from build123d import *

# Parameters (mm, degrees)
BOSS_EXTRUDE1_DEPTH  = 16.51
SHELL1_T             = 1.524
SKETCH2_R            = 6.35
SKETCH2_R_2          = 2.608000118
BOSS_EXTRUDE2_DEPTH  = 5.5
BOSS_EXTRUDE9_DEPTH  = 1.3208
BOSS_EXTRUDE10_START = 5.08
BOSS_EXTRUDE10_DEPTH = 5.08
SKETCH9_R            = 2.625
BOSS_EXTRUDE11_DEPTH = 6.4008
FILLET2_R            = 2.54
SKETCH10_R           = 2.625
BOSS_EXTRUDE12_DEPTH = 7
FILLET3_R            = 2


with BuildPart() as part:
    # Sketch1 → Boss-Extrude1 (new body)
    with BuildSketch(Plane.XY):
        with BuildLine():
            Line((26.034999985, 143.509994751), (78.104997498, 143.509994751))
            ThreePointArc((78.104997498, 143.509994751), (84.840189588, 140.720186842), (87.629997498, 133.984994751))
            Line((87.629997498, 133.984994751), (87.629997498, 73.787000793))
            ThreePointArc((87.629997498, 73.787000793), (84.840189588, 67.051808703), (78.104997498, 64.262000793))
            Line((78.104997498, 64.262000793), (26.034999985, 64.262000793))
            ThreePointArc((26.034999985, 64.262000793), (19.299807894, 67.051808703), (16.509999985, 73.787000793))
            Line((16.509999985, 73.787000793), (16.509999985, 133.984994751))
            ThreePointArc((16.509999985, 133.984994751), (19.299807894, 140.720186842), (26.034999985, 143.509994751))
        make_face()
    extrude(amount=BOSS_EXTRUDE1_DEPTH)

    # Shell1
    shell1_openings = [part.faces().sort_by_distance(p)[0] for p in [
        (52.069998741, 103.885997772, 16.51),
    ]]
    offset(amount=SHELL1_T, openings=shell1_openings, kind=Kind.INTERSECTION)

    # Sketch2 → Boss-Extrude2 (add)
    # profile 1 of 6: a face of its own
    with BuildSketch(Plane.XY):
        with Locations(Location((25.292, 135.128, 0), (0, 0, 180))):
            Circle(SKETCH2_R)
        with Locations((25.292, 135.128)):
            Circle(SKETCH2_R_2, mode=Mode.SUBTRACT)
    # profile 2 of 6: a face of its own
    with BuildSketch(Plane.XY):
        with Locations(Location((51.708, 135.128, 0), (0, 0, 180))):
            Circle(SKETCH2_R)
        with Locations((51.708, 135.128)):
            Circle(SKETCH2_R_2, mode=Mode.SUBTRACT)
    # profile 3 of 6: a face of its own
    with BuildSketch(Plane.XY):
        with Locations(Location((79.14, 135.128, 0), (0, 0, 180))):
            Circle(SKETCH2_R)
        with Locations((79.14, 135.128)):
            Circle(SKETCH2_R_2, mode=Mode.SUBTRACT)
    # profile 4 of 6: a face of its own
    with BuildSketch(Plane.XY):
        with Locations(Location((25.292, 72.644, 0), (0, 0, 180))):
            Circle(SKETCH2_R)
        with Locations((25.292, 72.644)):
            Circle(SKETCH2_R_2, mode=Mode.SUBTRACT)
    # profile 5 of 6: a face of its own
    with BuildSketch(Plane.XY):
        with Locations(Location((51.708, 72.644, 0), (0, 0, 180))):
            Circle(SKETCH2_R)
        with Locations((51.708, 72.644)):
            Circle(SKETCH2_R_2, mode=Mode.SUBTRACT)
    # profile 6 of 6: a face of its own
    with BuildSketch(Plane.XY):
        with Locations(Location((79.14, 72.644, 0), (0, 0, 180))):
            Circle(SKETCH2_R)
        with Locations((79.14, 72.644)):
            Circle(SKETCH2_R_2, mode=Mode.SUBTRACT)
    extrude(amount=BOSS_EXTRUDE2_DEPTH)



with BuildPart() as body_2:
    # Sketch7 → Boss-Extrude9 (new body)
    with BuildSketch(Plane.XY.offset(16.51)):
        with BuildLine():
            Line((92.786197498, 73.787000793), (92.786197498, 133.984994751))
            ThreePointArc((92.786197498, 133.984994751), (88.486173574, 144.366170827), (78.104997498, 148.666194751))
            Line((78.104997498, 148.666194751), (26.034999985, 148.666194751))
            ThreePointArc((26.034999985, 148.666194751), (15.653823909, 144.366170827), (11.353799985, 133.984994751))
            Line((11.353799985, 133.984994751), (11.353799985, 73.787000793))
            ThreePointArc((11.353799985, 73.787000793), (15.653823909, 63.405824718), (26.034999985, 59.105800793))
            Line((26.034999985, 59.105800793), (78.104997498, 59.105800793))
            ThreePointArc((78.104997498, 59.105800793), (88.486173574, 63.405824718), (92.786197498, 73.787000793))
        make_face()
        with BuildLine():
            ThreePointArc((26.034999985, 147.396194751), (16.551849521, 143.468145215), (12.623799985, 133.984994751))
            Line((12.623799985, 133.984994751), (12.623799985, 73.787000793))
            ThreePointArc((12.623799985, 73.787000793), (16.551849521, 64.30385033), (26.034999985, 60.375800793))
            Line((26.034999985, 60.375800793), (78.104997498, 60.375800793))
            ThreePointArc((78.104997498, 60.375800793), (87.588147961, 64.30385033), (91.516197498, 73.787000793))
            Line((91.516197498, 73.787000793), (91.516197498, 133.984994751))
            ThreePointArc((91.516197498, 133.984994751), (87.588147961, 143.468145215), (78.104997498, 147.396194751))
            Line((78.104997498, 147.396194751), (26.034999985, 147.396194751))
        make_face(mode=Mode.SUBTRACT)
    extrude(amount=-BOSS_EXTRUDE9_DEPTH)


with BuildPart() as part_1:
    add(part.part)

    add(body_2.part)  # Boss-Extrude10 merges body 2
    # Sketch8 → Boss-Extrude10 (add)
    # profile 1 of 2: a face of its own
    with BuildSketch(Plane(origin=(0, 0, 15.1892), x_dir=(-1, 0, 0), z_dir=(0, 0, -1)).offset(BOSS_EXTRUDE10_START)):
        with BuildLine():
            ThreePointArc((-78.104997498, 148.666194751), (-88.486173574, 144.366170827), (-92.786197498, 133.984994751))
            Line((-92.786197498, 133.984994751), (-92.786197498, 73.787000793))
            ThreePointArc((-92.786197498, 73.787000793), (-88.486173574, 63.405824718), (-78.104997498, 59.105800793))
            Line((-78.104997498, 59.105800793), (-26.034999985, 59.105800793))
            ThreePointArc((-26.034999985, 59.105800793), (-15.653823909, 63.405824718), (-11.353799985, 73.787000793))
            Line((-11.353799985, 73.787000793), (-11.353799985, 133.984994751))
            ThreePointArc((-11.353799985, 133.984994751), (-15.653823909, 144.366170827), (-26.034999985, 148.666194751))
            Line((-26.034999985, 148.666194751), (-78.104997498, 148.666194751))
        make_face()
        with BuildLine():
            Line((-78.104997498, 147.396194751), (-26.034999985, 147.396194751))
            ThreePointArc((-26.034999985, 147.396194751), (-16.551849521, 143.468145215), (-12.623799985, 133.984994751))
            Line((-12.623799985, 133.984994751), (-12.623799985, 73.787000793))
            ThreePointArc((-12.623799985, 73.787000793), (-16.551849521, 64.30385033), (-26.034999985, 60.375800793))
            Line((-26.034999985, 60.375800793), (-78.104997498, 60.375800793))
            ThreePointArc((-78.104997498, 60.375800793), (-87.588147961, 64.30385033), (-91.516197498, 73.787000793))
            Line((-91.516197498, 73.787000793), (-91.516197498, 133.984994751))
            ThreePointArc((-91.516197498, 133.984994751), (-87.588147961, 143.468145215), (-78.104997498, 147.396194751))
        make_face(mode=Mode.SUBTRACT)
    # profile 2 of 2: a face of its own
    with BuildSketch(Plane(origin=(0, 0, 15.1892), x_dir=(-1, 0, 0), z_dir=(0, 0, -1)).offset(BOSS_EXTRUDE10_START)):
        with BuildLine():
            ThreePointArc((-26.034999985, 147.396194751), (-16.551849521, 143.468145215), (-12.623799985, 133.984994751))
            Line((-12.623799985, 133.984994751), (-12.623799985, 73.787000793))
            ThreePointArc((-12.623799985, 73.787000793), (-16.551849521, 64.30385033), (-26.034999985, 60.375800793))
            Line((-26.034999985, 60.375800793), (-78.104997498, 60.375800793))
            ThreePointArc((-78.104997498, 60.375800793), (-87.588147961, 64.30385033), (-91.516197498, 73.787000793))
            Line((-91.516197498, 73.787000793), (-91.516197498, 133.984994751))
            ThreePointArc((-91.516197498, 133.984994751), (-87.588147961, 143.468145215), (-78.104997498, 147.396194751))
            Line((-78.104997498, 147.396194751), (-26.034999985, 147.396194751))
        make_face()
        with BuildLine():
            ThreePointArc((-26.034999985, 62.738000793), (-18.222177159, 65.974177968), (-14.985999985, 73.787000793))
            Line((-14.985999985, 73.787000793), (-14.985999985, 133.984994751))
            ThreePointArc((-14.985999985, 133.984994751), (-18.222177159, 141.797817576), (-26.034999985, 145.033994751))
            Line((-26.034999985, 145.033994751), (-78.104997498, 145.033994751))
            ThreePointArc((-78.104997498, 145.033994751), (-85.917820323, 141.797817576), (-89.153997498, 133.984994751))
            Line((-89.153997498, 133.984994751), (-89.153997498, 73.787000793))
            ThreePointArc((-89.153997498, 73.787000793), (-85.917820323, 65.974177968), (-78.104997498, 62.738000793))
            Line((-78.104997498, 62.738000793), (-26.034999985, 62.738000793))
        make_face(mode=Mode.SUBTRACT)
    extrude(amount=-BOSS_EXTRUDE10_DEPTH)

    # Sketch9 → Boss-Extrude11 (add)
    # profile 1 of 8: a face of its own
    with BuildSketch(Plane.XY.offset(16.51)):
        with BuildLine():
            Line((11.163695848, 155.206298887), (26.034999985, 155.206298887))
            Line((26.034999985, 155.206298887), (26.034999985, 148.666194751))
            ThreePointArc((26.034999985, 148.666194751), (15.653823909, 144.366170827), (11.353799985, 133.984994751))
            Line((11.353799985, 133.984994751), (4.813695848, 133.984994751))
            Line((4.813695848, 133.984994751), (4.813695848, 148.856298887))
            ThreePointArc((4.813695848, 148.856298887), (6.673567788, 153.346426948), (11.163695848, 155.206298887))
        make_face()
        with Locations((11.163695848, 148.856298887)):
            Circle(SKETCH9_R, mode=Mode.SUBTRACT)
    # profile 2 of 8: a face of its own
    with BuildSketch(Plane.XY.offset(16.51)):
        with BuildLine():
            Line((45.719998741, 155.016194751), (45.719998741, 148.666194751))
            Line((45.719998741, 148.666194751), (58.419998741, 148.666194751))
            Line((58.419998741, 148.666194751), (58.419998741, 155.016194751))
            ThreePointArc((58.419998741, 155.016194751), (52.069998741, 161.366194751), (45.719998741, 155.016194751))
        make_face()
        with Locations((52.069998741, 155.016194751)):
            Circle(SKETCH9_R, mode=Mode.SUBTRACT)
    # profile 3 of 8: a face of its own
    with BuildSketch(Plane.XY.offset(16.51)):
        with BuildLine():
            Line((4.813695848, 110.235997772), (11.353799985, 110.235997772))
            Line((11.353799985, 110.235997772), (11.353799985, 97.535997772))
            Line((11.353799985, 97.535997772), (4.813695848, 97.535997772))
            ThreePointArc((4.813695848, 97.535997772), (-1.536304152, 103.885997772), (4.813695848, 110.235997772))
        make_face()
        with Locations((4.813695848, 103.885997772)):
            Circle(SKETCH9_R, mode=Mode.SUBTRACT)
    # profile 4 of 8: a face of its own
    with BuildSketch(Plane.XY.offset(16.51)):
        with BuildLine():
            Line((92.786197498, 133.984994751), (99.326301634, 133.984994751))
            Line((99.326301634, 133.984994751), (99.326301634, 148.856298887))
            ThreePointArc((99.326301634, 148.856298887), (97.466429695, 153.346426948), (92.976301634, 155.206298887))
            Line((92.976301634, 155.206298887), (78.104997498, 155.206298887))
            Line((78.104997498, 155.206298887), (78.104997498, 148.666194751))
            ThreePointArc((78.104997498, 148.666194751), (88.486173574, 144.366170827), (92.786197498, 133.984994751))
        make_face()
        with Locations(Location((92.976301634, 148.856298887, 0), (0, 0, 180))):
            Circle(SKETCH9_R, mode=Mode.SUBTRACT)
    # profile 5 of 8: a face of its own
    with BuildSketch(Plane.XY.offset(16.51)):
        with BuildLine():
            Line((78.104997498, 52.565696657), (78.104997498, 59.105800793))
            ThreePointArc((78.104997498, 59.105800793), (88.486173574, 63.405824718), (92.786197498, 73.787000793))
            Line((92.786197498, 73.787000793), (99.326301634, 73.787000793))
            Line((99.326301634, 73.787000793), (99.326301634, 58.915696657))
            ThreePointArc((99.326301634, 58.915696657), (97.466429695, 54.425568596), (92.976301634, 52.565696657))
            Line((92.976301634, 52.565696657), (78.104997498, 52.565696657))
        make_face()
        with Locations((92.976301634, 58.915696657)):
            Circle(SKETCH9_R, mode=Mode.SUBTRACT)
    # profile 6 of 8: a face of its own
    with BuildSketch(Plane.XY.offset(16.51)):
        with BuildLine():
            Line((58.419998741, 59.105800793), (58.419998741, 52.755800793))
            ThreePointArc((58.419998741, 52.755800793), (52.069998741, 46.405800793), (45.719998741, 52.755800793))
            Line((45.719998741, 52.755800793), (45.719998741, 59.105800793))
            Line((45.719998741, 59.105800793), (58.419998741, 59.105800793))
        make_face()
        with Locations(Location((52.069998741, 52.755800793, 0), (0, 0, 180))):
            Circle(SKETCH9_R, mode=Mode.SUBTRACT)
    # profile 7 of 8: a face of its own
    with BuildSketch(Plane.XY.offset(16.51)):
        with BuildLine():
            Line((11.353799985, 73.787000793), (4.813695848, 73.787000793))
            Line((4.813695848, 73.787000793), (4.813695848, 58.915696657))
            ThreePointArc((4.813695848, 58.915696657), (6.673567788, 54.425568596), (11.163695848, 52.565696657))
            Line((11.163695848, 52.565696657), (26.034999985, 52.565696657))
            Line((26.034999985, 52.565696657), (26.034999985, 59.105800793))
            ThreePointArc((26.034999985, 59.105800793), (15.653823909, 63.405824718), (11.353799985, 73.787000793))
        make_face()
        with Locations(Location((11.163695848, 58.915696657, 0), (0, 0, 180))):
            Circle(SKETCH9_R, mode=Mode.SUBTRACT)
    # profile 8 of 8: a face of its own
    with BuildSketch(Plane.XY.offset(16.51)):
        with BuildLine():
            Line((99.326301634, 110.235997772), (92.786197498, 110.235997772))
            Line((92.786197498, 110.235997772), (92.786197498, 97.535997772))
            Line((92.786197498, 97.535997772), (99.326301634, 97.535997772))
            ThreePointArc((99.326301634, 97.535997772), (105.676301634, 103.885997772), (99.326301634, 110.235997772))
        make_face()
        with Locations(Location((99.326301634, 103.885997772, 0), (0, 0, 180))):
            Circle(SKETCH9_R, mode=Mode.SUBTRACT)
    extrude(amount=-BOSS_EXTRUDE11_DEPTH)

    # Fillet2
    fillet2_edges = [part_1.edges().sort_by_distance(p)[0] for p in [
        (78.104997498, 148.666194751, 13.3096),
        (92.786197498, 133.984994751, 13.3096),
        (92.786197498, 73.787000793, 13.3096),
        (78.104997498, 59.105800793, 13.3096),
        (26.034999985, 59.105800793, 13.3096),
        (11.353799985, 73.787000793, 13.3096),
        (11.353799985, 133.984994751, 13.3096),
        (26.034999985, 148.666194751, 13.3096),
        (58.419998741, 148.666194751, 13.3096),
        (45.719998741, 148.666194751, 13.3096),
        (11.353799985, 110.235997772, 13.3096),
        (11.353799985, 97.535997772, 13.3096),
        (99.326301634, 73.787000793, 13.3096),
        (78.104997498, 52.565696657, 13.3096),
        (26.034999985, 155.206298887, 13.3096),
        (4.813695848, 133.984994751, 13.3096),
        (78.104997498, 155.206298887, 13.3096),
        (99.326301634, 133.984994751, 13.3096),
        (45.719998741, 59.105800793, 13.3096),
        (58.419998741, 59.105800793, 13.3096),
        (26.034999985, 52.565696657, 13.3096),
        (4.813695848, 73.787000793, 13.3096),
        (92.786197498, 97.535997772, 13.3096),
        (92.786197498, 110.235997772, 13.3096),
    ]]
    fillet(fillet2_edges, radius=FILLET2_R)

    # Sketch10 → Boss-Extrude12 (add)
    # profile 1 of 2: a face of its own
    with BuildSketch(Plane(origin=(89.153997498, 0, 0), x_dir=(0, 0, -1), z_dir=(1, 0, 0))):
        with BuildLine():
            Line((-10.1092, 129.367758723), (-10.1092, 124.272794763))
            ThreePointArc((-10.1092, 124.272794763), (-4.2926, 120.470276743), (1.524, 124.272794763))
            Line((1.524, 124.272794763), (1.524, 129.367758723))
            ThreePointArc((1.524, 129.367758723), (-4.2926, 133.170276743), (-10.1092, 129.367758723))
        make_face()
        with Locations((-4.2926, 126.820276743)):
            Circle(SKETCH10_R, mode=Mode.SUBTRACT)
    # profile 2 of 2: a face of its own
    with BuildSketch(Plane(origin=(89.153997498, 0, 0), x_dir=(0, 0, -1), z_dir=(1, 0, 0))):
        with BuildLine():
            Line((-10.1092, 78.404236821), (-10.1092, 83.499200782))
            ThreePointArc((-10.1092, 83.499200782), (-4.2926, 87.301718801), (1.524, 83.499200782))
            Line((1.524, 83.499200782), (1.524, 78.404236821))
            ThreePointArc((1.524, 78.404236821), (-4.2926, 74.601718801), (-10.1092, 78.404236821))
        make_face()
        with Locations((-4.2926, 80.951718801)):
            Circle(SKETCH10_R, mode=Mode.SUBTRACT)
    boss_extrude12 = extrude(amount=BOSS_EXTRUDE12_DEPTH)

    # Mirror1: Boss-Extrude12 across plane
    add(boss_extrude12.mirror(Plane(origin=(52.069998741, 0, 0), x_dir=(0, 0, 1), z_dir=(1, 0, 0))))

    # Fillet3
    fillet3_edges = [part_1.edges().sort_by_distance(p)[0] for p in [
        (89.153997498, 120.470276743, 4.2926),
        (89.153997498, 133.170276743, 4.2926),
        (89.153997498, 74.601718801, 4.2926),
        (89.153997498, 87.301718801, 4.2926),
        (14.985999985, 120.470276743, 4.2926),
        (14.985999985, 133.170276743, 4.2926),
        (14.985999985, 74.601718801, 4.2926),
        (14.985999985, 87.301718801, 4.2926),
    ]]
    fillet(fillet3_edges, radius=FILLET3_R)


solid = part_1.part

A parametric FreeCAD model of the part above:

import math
import FreeCAD as App
import Part
import Sketcher

V = App.Vector
Q = App.Units.Quantity


def edges_at(feature, points):
    """Names of the edges that pass closest to the given points."""
    edges = feature.Shape.Edges
    near = lambda p: min(range(len(edges)), key=lambda i: edges[i].distToShape(Part.Vertex(*p))[0])
    return sorted({f"Edge{near(p) + 1}" for p in points})


def faces_at(feature, points):
    """Names of the faces that lie closest to the given points."""
    faces = feature.Shape.Faces
    near = lambda p: min(range(len(faces)), key=lambda i: faces[i].distToShape(Part.Vertex(*p))[0])
    return sorted({f"Face{near(p) + 1}" for p in points})

doc = App.newDocument("Part")
params = doc.addObject("Spreadsheet::Sheet", "Params")
for row, (alias, value) in enumerate([
    ("sketch1_radius", "0.375 in"),
    ("sketch1_width", "2.0499999 in"),
    ("pad1_length", "0.65 in"),
    ("thickness_wall", "0.06 in"),
    ("sketch2_diameter", "0.5 in"),
    ("pad2_length", "5.5 mm"),
    ("sketch3_radius", "0.578 in"),
    ("sketch3_radius2", "0.528 in"),
    ("sketch3_width", "2.0499999 in"),
    ("pad3_length", "0.052 in"),
    ("sketch4_radius", "0.578 in"),
    ("sketch4_radius2", "0.435 in"),
    ("sketch4_width", "2.0499999 in"),
    ("pad4_length", "0.2 in"),
    ("sketch5_radius", "0.25 in"),
    ("sketch5_radius2", "0.578 in"),
    ("sketch5_height", "0.25 in"),
    ("pad5_length", "0.252 in"),
    ("fillet_radius", "0.1 in"),
    ("sketch6_radius", "0.25 in"),
    ("pad6_length", "7 mm"),
    ("fillet2_radius", "2 mm"),
], start=1):
    params.set(f"A{row}", alias)
    params.set(f"B{row}", "=" + value)
    params.setAlias(f"B{row}", alias)

body = doc.addObject("PartDesign::Body", "Body")

# Sketch on XY plane
sketch1 = body.newObject("Sketcher::SketchObject", "Sketch")
sketch1.AttachmentSupport = (doc.getObject("XY_Plane"), [""])
sketch1.MapMode = "FlatFace"
sketch1.addGeometry([
    Part.LineSegment(V(78.104997, 143.509995, 0), V(26.035, 143.509995, 0)),  # 0
    Part.ArcOfCircle(Part.Circle(V(26.035, 133.984995, 0), V(0, 0, 1), 9.525), math.radians(90), math.radians(180)),  # 1
    Part.LineSegment(V(16.51, 133.984995, 0), V(16.51, 73.787001, 0)),  # 2
    Part.ArcOfCircle(Part.Circle(V(26.035, 73.787001, 0), V(0, 0, 1), 9.525), math.radians(-180), math.radians(-90)),  # 3
    Part.LineSegment(V(26.035, 64.262001, 0), V(78.104997, 64.262001, 0)),  # 4
    Part.ArcOfCircle(Part.Circle(V(78.104997, 73.787001, 0), V(0, 0, 1), 9.525), math.radians(-90), math.radians(0)),  # 5
    Part.LineSegment(V(87.629997, 73.787001, 0), V(87.629997, 133.984995, 0)),  # 6
    Part.ArcOfCircle(Part.Circle(V(78.104997, 133.984995, 0), V(0, 0, 1), 9.525), math.radians(0), math.radians(90)),  # 7
], False)
sketch1.addConstraint([
    Sketcher.Constraint("Tangent", 0, 2, 1, 1),
    Sketcher.Constraint("Tangent", 1, 2, 2, 1),
    Sketcher.Constraint("Tangent", 2, 2, 3, 1),
    Sketcher.Constraint("Tangent", 3, 2, 4, 1),
    Sketcher.Constraint("Tangent", 4, 2, 5, 1),
    Sketcher.Constraint("Tangent", 5, 2, 6, 1),
    Sketcher.Constraint("Tangent", 6, 2, 7, 1),
    Sketcher.Constraint("Tangent", 7, 2, 0, 1),
    Sketcher.Constraint("Horizontal", 0),
    Sketcher.Constraint("Vertical", 2),
    Sketcher.Constraint("Horizontal", 4),
    Sketcher.Constraint("Vertical", 6),
    Sketcher.Constraint("Equal", 1, 3),
    Sketcher.Constraint("Equal", 3, 5),
    Sketcher.Constraint("Equal", 5, 7),
    Sketcher.Constraint("Radius", 1, Q("0.375 in")),
    Sketcher.Constraint("DistanceX", 0, 2, 0, 1, Q("2.0499999 in")),
    Sketcher.Constraint("DistanceX", -1, 1, 1, 2, Q("0.65 in")),
    Sketcher.Constraint("DistanceY", -1, 1, 3, 2, Q("2.53 in")),
    Sketcher.Constraint("DistanceY", 2, 2, 2, 1, Q("60.197994 mm")),
])
sketch1.setExpression("Constraints[15]", "Params.sketch1_radius")
sketch1.setExpression("Constraints[16]", "Params.sketch1_width")
pad1 = body.newObject("PartDesign::Pad", "Pad")
pad1.Profile = sketch1
pad1.setExpression("Length", "Params.pad1_length")
doc.recompute()

thickness = body.newObject("PartDesign::Thickness", "Thickness")
thickness.Base = (pad1, faces_at(pad1, [(52.07, 103.886, 16.51)]))
thickness.setExpression("Value", "Params.thickness_wall")
thickness.Reversed = False
thickness.Join = "Intersection"

# Sketch on XY plane
sketch2 = body.newObject("Sketcher::SketchObject", "Sketch001")
sketch2.AttachmentSupport = (doc.getObject("XY_Plane"), [""])
sketch2.MapMode = "FlatFace"
sketch2.addGeometry([
    Part.Circle(V(25.292, 135.128, 0), V(0, 0, 1), 6.35),  # 0
    Part.Circle(V(25.292, 135.128, 0), V(0, 0, 1), 2.608),  # 1
    Part.Circle(V(51.708, 135.128, 0), V(0, 0, 1), 6.35),  # 2
    Part.Circle(V(51.708, 135.128, 0), V(0, 0, 1), 2.608),  # 3
    Part.Circle(V(79.14, 135.128, 0), V(0, 0, 1), 6.35),  # 4
    Part.Circle(V(79.14, 135.128, 0), V(0, 0, 1), 2.608),  # 5
    Part.Circle(V(25.292, 72.644, 0), V(0, 0, 1), 6.35),  # 6
    Part.Circle(V(25.292, 72.644, 0), V(0, 0, 1), 2.608),  # 7
    Part.Circle(V(51.708, 72.644, 0), V(0, 0, 1), 6.35),  # 8
    Part.Circle(V(51.708, 72.644, 0), V(0, 0, 1), 2.608),  # 9
    Part.Circle(V(79.14, 72.644, 0), V(0, 0, 1), 6.35),  # 10
    Part.Circle(V(79.14, 72.644, 0), V(0, 0, 1), 2.608),  # 11
], False)
sketch2.addConstraint([
    Sketcher.Constraint("Coincident", 1, 3, 0, 3),
    Sketcher.Constraint("Coincident", 3, 3, 2, 3),
    Sketcher.Constraint("Coincident", 5, 3, 4, 3),
    Sketcher.Constraint("Coincident", 7, 3, 6, 3),
    Sketcher.Constraint("Coincident", 9, 3, 8, 3),
    Sketcher.Constraint("Coincident", 11, 3, 10, 3),
    Sketcher.Constraint("Equal", 0, 2),
    Sketcher.Constraint("Equal", 1, 3),
    Sketcher.Constraint("Equal", 2, 4),
    Sketcher.Constraint("Equal", 3, 5),
    Sketcher.Constraint("Equal", 4, 6),
    Sketcher.Constraint("Equal", 5, 7),
    Sketcher.Constraint("Equal", 6, 8),
    Sketcher.Constraint("Equal", 7, 9),
    Sketcher.Constraint("Equal", 8, 10),
    Sketcher.Constraint("Equal", 9, 11),
    Sketcher.Constraint("Horizontal", 1, 3, 2, 3),
    Sketcher.Constraint("Horizontal", 3, 3, 4, 3),
    Sketcher.Constraint("Horizontal", 7, 3, 8, 3),
    Sketcher.Constraint("Horizontal", 9, 3, 10, 3),
    Sketcher.Constraint("Vertical", 1, 3, 6, 3),
    Sketcher.Constraint("Vertical", 3, 3, 8, 3),
    Sketcher.Constraint("Vertical", 5, 3, 10, 3),
    Sketcher.Constraint("Diameter", 0, Q("0.5 in")),
    Sketcher.Constraint("Diameter", 1, Q("5.216 mm")),
    Sketcher.Constraint("DistanceY", -1, 1, 0, 3, Q("5.32 in")),
    Sketcher.Constraint("DistanceY", -1, 1, 6, 3, Q("2.86 in")),
    Sketcher.Constraint("DistanceX", 0, 3, 2, 3, Q("1.04 in")),
    Sketcher.Constraint("DistanceX", 2, 3, 4, 3, Q("1.08 in")),
    Sketcher.Constraint("DistanceX", -1, 1, 0, 3, Q("25.292 mm")),
])
sketch2.setExpression("Constraints[23]", "Params.sketch2_diameter")
pad2 = body.newObject("PartDesign::Pad", "Pad001")
pad2.Profile = sketch2
pad2.setExpression("Length", "Params.pad2_length")
body2 = doc.addObject("PartDesign::Body", "Body001")

# Sketch on XY plane
sketch3 = body2.newObject("Sketcher::SketchObject", "Sketch002")
sketch3.AttachmentSupport = (doc.getObject("XY_Plane001"), [""])
sketch3.MapMode = "FlatFace"
sketch3.AttachmentOffset = App.Placement(V(0, 0, 0.65 * 25.4), App.Rotation())
sketch3.addGeometry([
    Part.LineSegment(V(92.786197, 73.787001, 0), V(92.786197, 133.984995, 0)),  # 0
    Part.ArcOfCircle(Part.Circle(V(78.104997, 133.984995, 0), V(0, 0, 1), 14.6812), math.radians(0), math.radians(90)),  # 1
    Part.LineSegment(V(78.104997, 148.666195, 0), V(26.035, 148.666195, 0)),  # 2
    Part.ArcOfCircle(Part.Circle(V(26.035, 133.984995, 0), V(0, 0, 1), 14.6812), math.radians(90), math.radians(180)),  # 3
    Part.LineSegment(V(11.3538, 133.984995, 0), V(11.3538, 73.787001, 0)),  # 4
    Part.ArcOfCircle(Part.Circle(V(26.035, 73.787001, 0), V(0, 0, 1), 14.6812), math.radians(-180), math.radians(-90)),  # 5
    Part.LineSegment(V(26.035, 59.105801, 0), V(78.104997, 59.105801, 0)),  # 6
    Part.ArcOfCircle(Part.Circle(V(78.104997, 73.787001, 0), V(0, 0, 1), 14.6812), math.radians(-90), math.radians(0)),  # 7
    Part.ArcOfCircle(Part.Circle(V(26.035, 133.984995, 0), V(0, 0, 1), 13.4112), math.radians(90), math.radians(180)),  # 8
    Part.LineSegment(V(26.035, 147.396195, 0), V(78.104997, 147.396195, 0)),  # 9
    Part.ArcOfCircle(Part.Circle(V(78.104997, 133.984995, 0), V(0, 0, 1), 13.4112), math.radians(0), math.radians(90)),  # 10
    Part.LineSegment(V(91.516197, 133.984995, 0), V(91.516197, 73.787001, 0)),  # 11
    Part.ArcOfCircle(Part.Circle(V(78.104997, 73.787001, 0), V(0, 0, 1), 13.4112), math.radians(-90), math.radians(0)),  # 12
    Part.LineSegment(V(78.104997, 60.375801, 0), V(26.035, 60.375801, 0)),  # 13
    Part.ArcOfCircle(Part.Circle(V(26.035, 73.787001, 0), V(0, 0, 1), 13.4112), math.radians(-180), math.radians(-90)),  # 14
    Part.LineSegment(V(12.6238, 73.787001, 0), V(12.6238, 133.984995, 0)),  # 15
], False)
sketch3.addConstraint([
    Sketcher.Constraint("Tangent", 0, 2, 1, 1),
    Sketcher.Constraint("Tangent", 1, 2, 2, 1),
    Sketcher.Constraint("Tangent", 2, 2, 3, 1),
    Sketcher.Constraint("Tangent", 3, 2, 4, 1),
    Sketcher.Constraint("Tangent", 4, 2, 5, 1),
    Sketcher.Constraint("Tangent", 5, 2, 6, 1),
    Sketcher.Constraint("Tangent", 6, 2, 7, 1),
    Sketcher.Constraint("Tangent", 7, 2, 0, 1),
    Sketcher.Constraint("Tangent", 8, 1, 9, 1),
    Sketcher.Constraint("Tangent", 9, 2, 10, 2),
    Sketcher.Constraint("Tangent", 10, 1, 11, 1),
    Sketcher.Constraint("Tangent", 11, 2, 12, 2),
    Sketcher.Constraint("Tangent", 12, 1, 13, 1),
    Sketcher.Constraint("Tangent", 13, 2, 14, 2),
    Sketcher.Constraint("Tangent", 14, 1, 15, 1),
    Sketcher.Constraint("Tangent", 15, 2, 8, 2),
    Sketcher.Constraint("Vertical", 0),
    Sketcher.Constraint("Horizontal", 2),
    Sketcher.Constraint("Vertical", 4),
    Sketcher.Constraint("Horizontal", 6),
    Sketcher.Constraint("Horizontal", 9),
    Sketcher.Constraint("Vertical", 11),
    Sketcher.Constraint("Horizontal", 13),
    Sketcher.Constraint("Vertical", 15),
    Sketcher.Constraint("Coincident", 8, 3, 3, 3),
    Sketcher.Constraint("Coincident", 10, 3, 1, 3),
    Sketcher.Constraint("Coincident", 12, 3, 7, 3),
    Sketcher.Constraint("Equal", 1, 3),
    Sketcher.Constraint("Equal", 3, 5),
    Sketcher.Constraint("Equal", 5, 7),
    Sketcher.Constraint("Equal", 12, 14),
    Sketcher.Constraint("Radius", 1, Q("0.578 in")),
    Sketcher.Constraint("Radius", 8, Q("0.528 in")),
    Sketcher.Constraint("DistanceX", 2, 2, 2, 1, Q("2.0499999 in")),
    Sketcher.Constraint("DistanceX", -1, 1, 1, 3, Q("3.0749999 in")),
    Sketcher.Constraint("DistanceY", -1, 1, 5, 3, Q("2.905 in")),
    Sketcher.Constraint("DistanceY", 0, 1, 0, 2, Q("60.197994 mm")),
])
sketch3.setExpression("Constraints[31]", "Params.sketch3_radius")
sketch3.setExpression("Constraints[32]", "Params.sketch3_radius2")
sketch3.setExpression("Constraints[33]", "Params.sketch3_width")
pad3 = body2.newObject("PartDesign::Pad", "Pad002")
pad3.Profile = sketch3
pad3.setExpression("Length", "Params.pad3_length")
pad3.Reversed = True
body.AllowCompound = True
doc.recompute()

boolean = body.newObject("PartDesign::Boolean", "Boolean")
boolean.Type = "Fuse"
boolean.addObjects([body2])

# Sketch on XY plane
sketch4 = body.newObject("Sketcher::SketchObject", "Sketch003")
sketch4.AttachmentSupport = (doc.getObject("XY_Plane"), [""])
sketch4.MapMode = "FlatFace"
sketch4.AttachmentOffset = App.Placement(V(0, 0, 0.398 * 25.4), App.Rotation())
sketch4.addGeometry([
    Part.ArcOfCircle(Part.Circle(V(78.104997, 133.984995, 0), V(0, 0, 1), 14.6812), math.radians(0), math.radians(90)),  # 0
    Part.LineSegment(V(92.786197, 133.984995, 0), V(92.786197, 73.787001, 0)),  # 1
    Part.ArcOfCircle(Part.Circle(V(78.104997, 73.787001, 0), V(0, 0, 1), 14.6812), math.radians(-90), math.radians(0)),  # 2
    Part.LineSegment(V(78.104997, 59.105801, 0), V(26.035, 59.105801, 0)),  # 3
    Part.ArcOfCircle(Part.Circle(V(26.035, 73.787001, 0), V(0, 0, 1), 14.6812), math.radians(-180), math.radians(-90)),  # 4
    Part.LineSegment(V(11.3538, 73.787001, 0), V(11.3538, 133.984995, 0)),  # 5
    Part.ArcOfCircle(Part.Circle(V(26.035, 133.984995, 0), V(0, 0, 1), 14.6812), math.radians(90), math.radians(180)),  # 6
    Part.LineSegment(V(26.035, 148.666195, 0), V(78.104997, 148.666195, 0)),  # 7
    Part.ArcOfCircle(Part.Circle(V(78.104997, 73.787001, 0), V(0, 0, 1), 11.049), math.radians(-90), math.radians(0)),  # 8
    Part.LineSegment(V(89.153997, 73.787001, 0), V(89.153997, 133.984995, 0)),  # 9
    Part.ArcOfCircle(Part.Circle(V(78.104997, 133.984995, 0), V(0, 0, 1), 11.049), math.radians(0), math.radians(90)),  # 10
    Part.LineSegment(V(78.104997, 145.033995, 0), V(26.035, 145.033995, 0)),  # 11
    Part.ArcOfCircle(Part.Circle(V(26.035, 133.984995, 0), V(0, 0, 1), 11.049), math.radians(90), math.radians(180)),  # 12
    Part.LineSegment(V(14.986, 133.984995, 0), V(14.986, 73.787001, 0)),  # 13
    Part.ArcOfCircle(Part.Circle(V(26.035, 73.787001, 0), V(0, 0, 1), 11.049), math.radians(180), math.radians(270)),  # 14
    Part.LineSegment(V(26.035, 62.738001, 0), V(78.104997, 62.738001, 0)),  # 15
], False)
sketch4.addConstraint([
    Sketcher.Constraint("Tangent", 0, 1, 1, 1),
    Sketcher.Constraint("Tangent", 1, 2, 2, 2),
    Sketcher.Constraint("Tangent", 2, 1, 3, 1),
    Sketcher.Constraint("Tangent", 3, 2, 4, 2),
    Sketcher.Constraint("Tangent", 4, 1, 5, 1),
    Sketcher.Constraint("Tangent", 5, 2, 6, 2),
    Sketcher.Constraint("Tangent", 6, 1, 7, 1),
    Sketcher.Constraint("Tangent", 7, 2, 0, 2),
    Sketcher.Constraint("Tangent", 8, 2, 9, 1),
    Sketcher.Constraint("Tangent", 9, 2, 10, 1),
    Sketcher.Constraint("Tangent", 10, 2, 11, 1),
    Sketcher.Constraint("Tangent", 11, 2, 12, 1),
    Sketcher.Constraint("Tangent", 12, 2, 13, 1),
    Sketcher.Constraint("Tangent", 13, 2, 14, 1),
    Sketcher.Constraint("Tangent", 14, 2, 15, 1),
    Sketcher.Constraint("Tangent", 15, 2, 8, 1),
    Sketcher.Constraint("Vertical", 1),
    Sketcher.Constraint("Horizontal", 3),
    Sketcher.Constraint("Vertical", 5),
    Sketcher.Constraint("Horizontal", 7),
    Sketcher.Constraint("Vertical", 9),
    Sketcher.Constraint("Horizontal", 11),
    Sketcher.Constraint("Vertical", 13),
    Sketcher.Constraint("Horizontal", 15),
    Sketcher.Constraint("Coincident", 8, 3, 2, 3),
    Sketcher.Constraint("Coincident", 10, 3, 0, 3),
    Sketcher.Constraint("Coincident", 12, 3, 6, 3),
    Sketcher.Constraint("Equal", 0, 2),
    Sketcher.Constraint("Equal", 2, 4),
    Sketcher.Constraint("Equal", 4, 6),
    Sketcher.Constraint("Equal", 12, 14),
    Sketcher.Constraint("Radius", 0, Q("0.578 in")),
    Sketcher.Constraint("Radius", 8, Q("0.435 in")),
    Sketcher.Constraint("DistanceX", 3, 2, 3, 1, Q("2.0499999 in")),
    Sketcher.Constraint("DistanceX", -1, 1, 8, 2, Q("3.5099999 in")),
    Sketcher.Constraint("DistanceY", -1, 1, 14, 2, Q("2.47 in")),
    Sketcher.Constraint("DistanceY", 1, 2, 1, 1, Q("60.197994 mm")),
])
sketch4.setExpression("Constraints[31]", "Params.sketch4_radius")
sketch4.setExpression("Constraints[32]", "Params.sketch4_radius2")
sketch4.setExpression("Constraints[33]", "Params.sketch4_width")
pad4 = body.newObject("PartDesign::Pad", "Pad003")
pad4.Profile = sketch4
pad4.setExpression("Length", "Params.pad4_length")

# Sketch on XY plane
sketch5 = body.newObject("Sketcher::SketchObject", "Sketch004")
sketch5.AttachmentSupport = (doc.getObject("XY_Plane"), [""])
sketch5.MapMode = "FlatFace"
sketch5.AttachmentOffset = App.Placement(V(0, 0, 0.65 * 25.4), App.Rotation())
sketch5.addGeometry([
    Part.LineSegment(V(26.035, 155.206299, 0), V(11.163696, 155.206299, 0)),  # 0
    Part.ArcOfCircle(Part.Circle(V(11.163696, 148.856299, 0), V(0, 0, 1), 6.35), math.radians(90), math.radians(180)),  # 1
    Part.LineSegment(V(4.813696, 148.856299, 0), V(4.813696, 133.984995, 0)),  # 2
    Part.LineSegment(V(4.813696, 133.984995, 0), V(11.3538, 133.984995, 0)),  # 3
    Part.ArcOfCircle(Part.Circle(V(26.035, 133.984995, 0), V(0, 0, 1), 14.6812), math.radians(90), math.radians(180)),  # 4
    Part.LineSegment(V(26.035, 148.666195, 0), V(26.035, 155.206299, 0)),  # 5
    Part.Circle(V(11.163696, 148.856299, 0), V(0, 0, 1), 2.625),  # 6
    Part.LineSegment(V(45.719999, 155.016195, 0), V(45.719999, 148.666195, 0)),  # 7
    Part.LineSegment(V(45.719999, 148.666195, 0), V(58.419999, 148.666195, 0)),  # 8
    Part.LineSegment(V(58.419999, 148.666195, 0), V(58.419999, 155.016195, 0)),  # 9
    Part.ArcOfCircle(Part.Circle(V(52.069999, 155.016195, 0), V(0, 0, 1), 6.35), math.radians(0), math.radians(180)),  # 10
    Part.Circle(V(52.069999, 155.016195, 0), V(0, 0, 1), 2.625),  # 11
    Part.LineSegment(V(11.3538, 110.235998, 0), V(4.813696, 110.235998, 0)),  # 12
    Part.ArcOfCircle(Part.Circle(V(4.813696, 103.885998, 0), V(0, 0, 1), 6.35), math.radians(90), math.radians(270)),  # 13
    Part.LineSegment(V(4.813696, 97.535998, 0), V(11.3538, 97.535998, 0)),  # 14
    Part.LineSegment(V(11.3538, 97.535998, 0), V(11.3538, 110.235998, 0)),  # 15
    Part.Circle(V(4.813696, 103.885998, 0), V(0, 0, 1), 2.625),  # 16
    Part.LineSegment(V(92.786197, 133.984995, 0), V(99.326302, 133.984995, 0)),  # 17
    Part.LineSegment(V(99.326302, 133.984995, 0), V(99.326302, 148.856299, 0)),  # 18
    Part.ArcOfCircle(Part.Circle(V(92.976302, 148.856299, 0), V(0, 0, 1), 6.35), math.radians(0), math.radians(90)),  # 19
    Part.LineSegment(V(92.976302, 155.206299, 0), V(78.104997, 155.206299, 0)),  # 20
    Part.LineSegment(V(78.104997, 155.206299, 0), V(78.104997, 148.666195, 0)),  # 21
    Part.ArcOfCircle(Part.Circle(V(78.104997, 133.984995, 0), V(0, 0, 1), 14.6812), math.radians(0), math.radians(90)),  # 22
    Part.Circle(V(92.976302, 148.856299, 0), V(0, 0, 1), 2.625),  # 23
    Part.LineSegment(V(78.104997, 59.105801, 0), V(78.104997, 52.565697, 0)),  # 24
    Part.LineSegment(V(78.104997, 52.565697, 0), V(92.976302, 52.565697, 0)),  # 25
    Part.ArcOfCircle(Part.Circle(V(92.976302, 58.915697, 0), V(0, 0, 1), 6.35), math.radians(-90), math.radians(0)),  # 26
    Part.LineSegment(V(99.326302, 58.915697, 0), V(99.326302, 73.787001, 0)),  # 27
    Part.LineSegment(V(99.326302, 73.787001, 0), V(92.786197, 73.787001, 0)),  # 28
    Part.ArcOfCircle(Part.Circle(V(78.104997, 73.787001, 0), V(0, 0, 1), 14.6812), math.radians(-90), math.radians(0)),  # 29
    Part.Circle(V(92.976302, 58.915697, 0), V(0, 0, 1), 2.625),  # 30
    Part.LineSegment(V(58.419999, 52.755801, 0), V(58.419999, 59.105801, 0)),  # 31
    Part.LineSegment(V(58.419999, 59.105801, 0), V(45.719999, 59.105801, 0)),  # 32
    Part.LineSegment(V(45.719999, 59.105801, 0), V(45.719999, 52.755801, 0)),  # 33
    Part.ArcOfCircle(Part.Circle(V(52.069999, 52.755801, 0), V(0, 0, 1), 6.35), math.radians(180), math.radians(360)),  # 34
    Part.Circle(V(52.069999, 52.755801, 0), V(0, 0, 1), 2.625),  # 35
    Part.LineSegment(V(11.3538, 73.787001, 0), V(4.813696, 73.787001, 0)),  # 36
    Part.LineSegment(V(4.813696, 73.787001, 0), V(4.813696, 58.915697, 0)),  # 37
    Part.ArcOfCircle(Part.Circle(V(11.163696, 58.915697, 0), V(0, 0, 1), 6.35), math.radians(180), math.radians(270)),  # 38
    Part.LineSegment(V(11.163696, 52.565697, 0), V(26.035, 52.565697, 0)),  # 39
    Part.LineSegment(V(26.035, 52.565697, 0), V(26.035, 59.105801, 0)),  # 40
    Part.ArcOfCircle(Part.Circle(V(26.035, 73.787001, 0), V(0, 0, 1), 14.6812), math.radians(-180), math.radians(-90)),  # 41
    Part.Circle(V(11.163696, 58.915697, 0), V(0, 0, 1), 2.625),  # 42
    Part.LineSegment(V(99.326302, 110.235998, 0), V(92.786197, 110.235998, 0)),  # 43
    Part.LineSegment(V(92.786197, 110.235998, 0), V(92.786197, 97.535998, 0)),  # 44
    Part.LineSegment(V(92.786197, 97.535998, 0), V(99.326302, 97.535998, 0)),  # 45
    Part.ArcOfCircle(Part.Circle(V(99.326302, 103.885998, 0), V(0, 0, 1), 6.35), math.radians(-90), math.radians(90)),  # 46
    Part.Circle(V(99.326302, 103.885998, 0), V(0, 0, 1), 2.625),  # 47
], False)
sketch5.addConstraint([
    Sketcher.Constraint("Tangent", 0, 2, 1, 1),
    Sketcher.Constraint("Tangent", 1, 2, 2, 1),
    Sketcher.Constraint("Coincident", 2, 2, 3, 1),
    Sketcher.Constraint("Coincident", 3, 2, 4, 2),
    Sketcher.Constraint("Coincident", 4, 1, 5, 1),
    Sketcher.Constraint("Coincident", 5, 2, 0, 1),
    Sketcher.Constraint("Coincident", 7, 2, 8, 1),
    Sketcher.Constraint("Coincident", 8, 2, 9, 1),
    Sketcher.Constraint("Tangent", 9, 2, 10, 1),
    Sketcher.Constraint("Tangent", 10, 2, 7, 1),
    Sketcher.Constraint("Tangent", 12, 2, 13, 1),
    Sketcher.Constraint("Tangent", 13, 2, 14, 1),
    Sketcher.Constraint("Coincident", 14, 2, 15, 1),
    Sketcher.Constraint("Coincident", 15, 2, 12, 1),
    Sketcher.Constraint("Coincident", 17, 2, 18, 1),
    Sketcher.Constraint("Tangent", 18, 2, 19, 1),
    Sketcher.Constraint("Tangent", 19, 2, 20, 1),
    Sketcher.Constraint("Coincident", 20, 2, 21, 1),
    Sketcher.Constraint("Coincident", 21, 2, 22, 2),
    Sketcher.Constraint("Coincident", 22, 1, 17, 1),
    Sketcher.Constraint("Coincident", 24, 2, 25, 1),
    Sketcher.Constraint("Tangent", 25, 2, 26, 1),
    Sketcher.Constraint("Tangent", 26, 2, 27, 1),
    Sketcher.Constraint("Coincident", 27, 2, 28, 1),
    Sketcher.Constraint("Coincident", 28, 2, 29, 2),
    Sketcher.Constraint("Coincident", 29, 1, 24, 1),
    Sketcher.Constraint("Coincident", 31, 2, 32, 1),
    Sketcher.Constraint("Coincident", 32, 2, 33, 1),
    Sketcher.Constraint("Tangent", 33, 2, 34, 1),
    Sketcher.Constraint("Tangent", 34, 2, 31, 1),
    Sketcher.Constraint("Coincident", 36, 2, 37, 1),
    Sketcher.Constraint("Tangent", 37, 2, 38, 1),
    Sketcher.Constraint("Tangent", 38, 2, 39, 1),
    Sketcher.Constraint("Coincident", 39, 2, 40, 1),
    Sketcher.Constraint("Coincident", 40, 2, 41, 2),
    Sketcher.Constraint("Coincident", 41, 1, 36, 1),
    Sketcher.Constraint("Coincident", 43, 2, 44, 1),
    Sketcher.Constraint("Coincident", 44, 2, 45, 1),
    Sketcher.Constraint("Tangent", 45, 2, 46, 1),
    Sketcher.Constraint("Tangent", 46, 2, 43, 1),
    Sketcher.Constraint("Horizontal", 0),
    Sketcher.Constraint("Vertical", 2),
    Sketcher.Constraint("Horizontal", 3),
    Sketcher.Constraint("Vertical", 5),
    Sketcher.Constraint("Vertical", 7),
    Sketcher.Constraint("Horizontal", 8),
    Sketcher.Constraint("Vertical", 9),
    Sketcher.Constraint("Horizontal", 12),
    Sketcher.Constraint("Horizontal", 14),
    Sketcher.Constraint("Vertical", 15),
    Sketcher.Constraint("Horizontal", 17),
    Sketcher.Constraint("Vertical", 18),
    Sketcher.Constraint("Horizontal", 20),
    Sketcher.Constraint("Vertical", 21),
    Sketcher.Constraint("Vertical", 24),
    Sketcher.Constraint("Horizontal", 25),
    Sketcher.Constraint("Vertical", 27),
    Sketcher.Constraint("Horizontal", 28),
    Sketcher.Constraint("Vertical", 31),
    Sketcher.Constraint("Horizontal", 32),
    Sketcher.Constraint("Vertical", 33),
    Sketcher.Constraint("Horizontal", 36),
    Sketcher.Constraint("Vertical", 37),
    Sketcher.Constraint("Horizontal", 39),
    Sketcher.Constraint("Vertical", 40),
    Sketcher.Constraint("Horizontal", 43),
    Sketcher.Constraint("Vertical", 44),
    Sketcher.Constraint("Horizontal", 45),
    Sketcher.Constraint("Coincident", 6, 3, 1, 3),
    Sketcher.Constraint("Coincident", 11, 3, 10, 3),
    Sketcher.Constraint("Coincident", 16, 3, 13, 3),
    Sketcher.Constraint("Coincident", 23, 3, 19, 3),
    Sketcher.Constraint("Coincident", 30, 3, 26, 3),
    Sketcher.Constraint("Coincident", 35, 3, 34, 3),
    Sketcher.Constraint("Coincident", 42, 3, 38, 3),
    Sketcher.Constraint("Coincident", 47, 3, 46, 3),
    Sketcher.Constraint("Equal", 1, 10),
    Sketcher.Constraint("Equal", 6, 11),
    Sketcher.Constraint("Equal", 10, 13),
    Sketcher.Constraint("Equal", 11, 16),
    Sketcher.Constraint("Equal", 13, 19),
    Sketcher.Constraint("Equal", 4, 22),
    Sketcher.Constraint("Equal", 16, 23),
    Sketcher.Constraint("Equal", 19, 26),
    Sketcher.Constraint("Equal", 22, 29),
    Sketcher.Constraint("Equal", 23, 30),
    Sketcher.Constraint("Equal", 26, 34),
    Sketcher.Constraint("Equal", 30, 35),
    Sketcher.Constraint("Equal", 34, 38),
    Sketcher.Constraint("Equal", 29, 41),
    Sketcher.Constraint("Equal", 35, 42),
    Sketcher.Constraint("Equal", 38, 46),
    Sketcher.Constraint("Equal", 42, 47),
    Sketcher.Constraint("Horizontal", 6, 3, 19, 3),
    Sketcher.Constraint("Horizontal", 4, 3, 22, 3),
    Sketcher.Constraint("Horizontal", 30, 3, 38, 3),
    Sketcher.Constraint("Horizontal", 29, 3, 41, 3),
    Sketcher.Constraint("Horizontal", 16, 3, 46, 3),
    Sketcher.Constraint("Horizontal", 22, 3, 2, 2),
    Sketcher.Constraint("Horizontal", 4, 1, 7, 2),
    Sketcher.Constraint("Horizontal", 3, 2, 17, 2),
    Sketcher.Constraint("Horizontal", 41, 3, 27, 2),
    Sketcher.Constraint("Horizontal", 29, 1, 31, 2),
    Sketcher.Constraint("Horizontal", 28, 2, 36, 2),
    Sketcher.Constraint("Vertical", 23, 3, 26, 3),
    Sketcher.Constraint("Vertical", 22, 3, 29, 3),
    Sketcher.Constraint("Vertical", 11, 3, 34, 3),
    Sketcher.Constraint("Vertical", 6, 3, 38, 3),
    Sketcher.Constraint("Vertical", 4, 3, 41, 3),
    Sketcher.Constraint("Vertical", 16, 3, 1, 2),
    Sketcher.Constraint("Vertical", 41, 3, 4, 1),
    Sketcher.Constraint("Vertical", 3, 2, 14, 2),
    Sketcher.Constraint("Vertical", 47, 3, 17, 2),
    Sketcher.Constraint("Vertical", 29, 3, 20, 2),
    Sketcher.Constraint("Vertical", 21, 2, 24, 2),
    Sketcher.Constraint("Vertical", 5, 2, 39, 2),
    Sketcher.Constraint("Vertical", 28, 2, 43, 2),
    Sketcher.Constraint("Equal", 14, 17),
    Sketcher.Constraint("Equal", 39, 2),
    Sketcher.Constraint("Equal", 21, 24),
    Sketcher.Constraint("Equal", 9, 31),
    Sketcher.Constraint("Radius", 1, Q("0.25 in")),
    Sketcher.Constraint("Radius", 4, Q("0.578 in")),
    Sketcher.Constraint("DistanceY", 7, 2, 7, 1, Q("0.25 in")),
    Sketcher.Constraint("DistanceX", -1, 1, 7, 2, Q("1.8 in")),
    Sketcher.Constraint("Diameter", 6, Q("5.25 mm")),
    Sketcher.Constraint("DistanceY", -1, 1, 13, 3, Q("4.0899999 in")),
    Sketcher.Constraint("DistanceX", 4, 3, 22, 3, Q("2.0499999 in")),
    Sketcher.Constraint("DistanceX", -1, 1, 4, 3, Q("1.025 in")),
    Sketcher.Constraint("DistanceY", -1, 1, 29, 3, Q("2.905 in")),
    Sketcher.Constraint("DistanceY", 13, 3, 4, 3, Q("1.1849999 in")),
    Sketcher.Constraint("DistanceY", -1, 1, 1, 3, Q("148.856299 mm")),
])
sketch5.setExpression("Constraints[121]", "Params.sketch5_radius")
sketch5.setExpression("Constraints[122]", "Params.sketch5_radius2")
sketch5.setExpression("Constraints[123]", "Params.sketch5_height")
pad5 = body.newObject("PartDesign::Pad", "Pad004")
pad5.Profile = sketch5
pad5.setExpression("Length", "Params.pad5_length")
pad5.Reversed = True
doc.recompute()

fillet = body.newObject("PartDesign::Fillet", "Fillet")
fillet.Base = (pad5, edges_at(pad5, [
    (78.105, 148.666, 13.31),
    (92.786, 133.985, 13.31),
    (92.786, 73.787, 13.31),
    (78.105, 59.106, 13.31),
    (26.035, 59.106, 13.31),
    (11.354, 73.787, 13.31),
    (11.354, 133.985, 13.31),
    (26.035, 148.666, 13.31),
    (58.42, 148.666, 13.31),
    (45.72, 148.666, 13.31),
    (11.354, 110.236, 13.31),
    (11.354, 97.536, 13.31),
    (99.326, 73.787, 13.31),
    (78.105, 52.566, 13.31),
    (26.035, 155.206, 13.31),
    (4.814, 133.985, 13.31),
    (78.105, 155.206, 13.31),
    (99.326, 133.985, 13.31),
    (45.72, 59.106, 13.31),
    (58.42, 59.106, 13.31),
    (26.035, 52.566, 13.31),
    (4.814, 73.787, 13.31),
    (92.786, 97.536, 13.31),
    (92.786, 110.236, 13.31),
]))
fillet.setExpression("Radius", "Params.fillet_radius")

# Sketch on YZ plane
sketch6 = body.newObject("Sketcher::SketchObject", "Sketch005")
sketch6.AttachmentSupport = (doc.getObject("YZ_Plane"), [""])
sketch6.MapMode = "FlatFace"
sketch6.AttachmentOffset = App.Placement(V(0, 0, 3.5099999 * 25.4), App.Rotation())
sketch6.addGeometry([
    Part.LineSegment(V(129.367759, 10.1092, 0), V(124.272795, 10.1092, 0)),  # 0
    Part.ArcOfCircle(Part.Circle(V(126.820277, 4.2926, 0), V(0, 0, 1), 6.35), math.radians(113.651858), math.radians(246.348142)),  # 1
    Part.LineSegment(V(124.272795, -1.524, 0), V(129.367759, -1.524, 0)),  # 2
    Part.ArcOfCircle(Part.Circle(V(126.820277, 4.2926, 0), V(0, 0, 1), 6.35), math.radians(-66.348142), math.radians(66.348142)),  # 3
    Part.Circle(V(126.820277, 4.2926, 0), V(0, 0, 1), 2.625),  # 4
    Part.LineSegment(V(83.499201, 10.1092, 0), V(78.404237, 10.1092, 0)),  # 5
    Part.ArcOfCircle(Part.Circle(V(80.951719, 4.2926, 0), V(0, 0, 1), 6.35), math.radians(113.651858), math.radians(246.348142)),  # 6
    Part.LineSegment(V(78.404237, -1.524, 0), V(83.499201, -1.524, 0)),  # 7
    Part.ArcOfCircle(Part.Circle(V(80.951719, 4.2926, 0), V(0, 0, 1), 6.35), math.radians(-66.348142), math.radians(66.348142)),  # 8
    Part.Circle(V(80.951719, 4.2926, 0), V(0, 0, 1), 2.625),  # 9
], False)
sketch6.addConstraint([
    Sketcher.Constraint("Coincident", 0, 2, 1, 1),
    Sketcher.Constraint("Coincident", 1, 2, 2, 1),
    Sketcher.Constraint("Coincident", 2, 2, 3, 1),
    Sketcher.Constraint("Coincident", 3, 2, 0, 1),
    Sketcher.Constraint("Coincident", 5, 2, 6, 1),
    Sketcher.Constraint("Coincident", 6, 2, 7, 1),
    Sketcher.Constraint("Coincident", 7, 2, 8, 1),
    Sketcher.Constraint("Coincident", 8, 2, 5, 1),
    Sketcher.Constraint("Horizontal", 0),
    Sketcher.Constraint("Horizontal", 2),
    Sketcher.Constraint("Horizontal", 5),
    Sketcher.Constraint("Horizontal", 7),
    Sketcher.Constraint("Coincident", 3, 3, 1, 3),
    Sketcher.Constraint("Coincident", 4, 3, 1, 3),
    Sketcher.Constraint("Coincident", 8, 3, 6, 3),
    Sketcher.Constraint("Coincident", 9, 3, 6, 3),
    Sketcher.Constraint("Equal", 1, 3),
    Sketcher.Constraint("Equal", 3, 6),
    Sketcher.Constraint("Equal", 6, 8),
    Sketcher.Constraint("Equal", 4, 9),
    Sketcher.Constraint("Horizontal", 4, 3, 6, 3),
    Sketcher.Constraint("Horizontal", 3, 2, 5, 2),
    Sketcher.Constraint("Horizontal", 2, 2, 6, 2),
    Sketcher.Constraint("Vertical", 0, 2, 1, 2),
    Sketcher.Constraint("Radius", 1, Q("0.25 in")),
    Sketcher.Constraint("Diameter", 4, Q("5.25 mm")),
    Sketcher.Constraint("DistanceY", 1, 2, -1, 1, Q("0.06 in")),
    Sketcher.Constraint("DistanceY", -1, 1, 1, 3, Q("0.169 in")),
    Sketcher.Constraint("DistanceX", -1, 1, 7, 2, Q("83.499201 mm")),
    Sketcher.Constraint("DistanceX", -1, 1, 2, 2, Q("129.367759 mm")),
])
sketch6.setExpression("Constraints[24]", "Params.sketch6_radius")
pad6 = body.newObject("PartDesign::Pad", "Pad005")
pad6.Profile = sketch6
pad6.setExpression("Length", "Params.pad6_length")
doc.recompute()

datumplane = body.newObject("PartDesign::Plane", "DatumPlane")
datumplane.AttachmentSupport = (doc.getObject("YZ_Plane"), [""])
datumplane.MapMode = "FlatFace"
datumplane.AttachmentOffset = App.Placement(V(0, 0, 2.05 * 25.4), App.Rotation())
mirrored = body.newObject("PartDesign::Mirrored", "Mirrored")
mirrored.Originals = [pad6]
mirrored.MirrorPlane = (datumplane, [""])
body.Tip = mirrored
doc.recompute()

fillet2 = body.newObject("PartDesign::Fillet", "Fillet001")
fillet2.Base = (mirrored, edges_at(mirrored, [
    (89.154, 120.47, 4.293),
    (89.154, 133.17, 4.293),
    (89.154, 74.602, 4.293),
    (89.154, 87.302, 4.293),
    (14.986, 120.47, 4.293),
    (14.986, 133.17, 4.293),
    (14.986, 74.602, 4.293),
    (14.986, 87.302, 4.293),
]))
fillet2.setExpression("Radius", "Params.fillet2_radius")

doc.recompute()
